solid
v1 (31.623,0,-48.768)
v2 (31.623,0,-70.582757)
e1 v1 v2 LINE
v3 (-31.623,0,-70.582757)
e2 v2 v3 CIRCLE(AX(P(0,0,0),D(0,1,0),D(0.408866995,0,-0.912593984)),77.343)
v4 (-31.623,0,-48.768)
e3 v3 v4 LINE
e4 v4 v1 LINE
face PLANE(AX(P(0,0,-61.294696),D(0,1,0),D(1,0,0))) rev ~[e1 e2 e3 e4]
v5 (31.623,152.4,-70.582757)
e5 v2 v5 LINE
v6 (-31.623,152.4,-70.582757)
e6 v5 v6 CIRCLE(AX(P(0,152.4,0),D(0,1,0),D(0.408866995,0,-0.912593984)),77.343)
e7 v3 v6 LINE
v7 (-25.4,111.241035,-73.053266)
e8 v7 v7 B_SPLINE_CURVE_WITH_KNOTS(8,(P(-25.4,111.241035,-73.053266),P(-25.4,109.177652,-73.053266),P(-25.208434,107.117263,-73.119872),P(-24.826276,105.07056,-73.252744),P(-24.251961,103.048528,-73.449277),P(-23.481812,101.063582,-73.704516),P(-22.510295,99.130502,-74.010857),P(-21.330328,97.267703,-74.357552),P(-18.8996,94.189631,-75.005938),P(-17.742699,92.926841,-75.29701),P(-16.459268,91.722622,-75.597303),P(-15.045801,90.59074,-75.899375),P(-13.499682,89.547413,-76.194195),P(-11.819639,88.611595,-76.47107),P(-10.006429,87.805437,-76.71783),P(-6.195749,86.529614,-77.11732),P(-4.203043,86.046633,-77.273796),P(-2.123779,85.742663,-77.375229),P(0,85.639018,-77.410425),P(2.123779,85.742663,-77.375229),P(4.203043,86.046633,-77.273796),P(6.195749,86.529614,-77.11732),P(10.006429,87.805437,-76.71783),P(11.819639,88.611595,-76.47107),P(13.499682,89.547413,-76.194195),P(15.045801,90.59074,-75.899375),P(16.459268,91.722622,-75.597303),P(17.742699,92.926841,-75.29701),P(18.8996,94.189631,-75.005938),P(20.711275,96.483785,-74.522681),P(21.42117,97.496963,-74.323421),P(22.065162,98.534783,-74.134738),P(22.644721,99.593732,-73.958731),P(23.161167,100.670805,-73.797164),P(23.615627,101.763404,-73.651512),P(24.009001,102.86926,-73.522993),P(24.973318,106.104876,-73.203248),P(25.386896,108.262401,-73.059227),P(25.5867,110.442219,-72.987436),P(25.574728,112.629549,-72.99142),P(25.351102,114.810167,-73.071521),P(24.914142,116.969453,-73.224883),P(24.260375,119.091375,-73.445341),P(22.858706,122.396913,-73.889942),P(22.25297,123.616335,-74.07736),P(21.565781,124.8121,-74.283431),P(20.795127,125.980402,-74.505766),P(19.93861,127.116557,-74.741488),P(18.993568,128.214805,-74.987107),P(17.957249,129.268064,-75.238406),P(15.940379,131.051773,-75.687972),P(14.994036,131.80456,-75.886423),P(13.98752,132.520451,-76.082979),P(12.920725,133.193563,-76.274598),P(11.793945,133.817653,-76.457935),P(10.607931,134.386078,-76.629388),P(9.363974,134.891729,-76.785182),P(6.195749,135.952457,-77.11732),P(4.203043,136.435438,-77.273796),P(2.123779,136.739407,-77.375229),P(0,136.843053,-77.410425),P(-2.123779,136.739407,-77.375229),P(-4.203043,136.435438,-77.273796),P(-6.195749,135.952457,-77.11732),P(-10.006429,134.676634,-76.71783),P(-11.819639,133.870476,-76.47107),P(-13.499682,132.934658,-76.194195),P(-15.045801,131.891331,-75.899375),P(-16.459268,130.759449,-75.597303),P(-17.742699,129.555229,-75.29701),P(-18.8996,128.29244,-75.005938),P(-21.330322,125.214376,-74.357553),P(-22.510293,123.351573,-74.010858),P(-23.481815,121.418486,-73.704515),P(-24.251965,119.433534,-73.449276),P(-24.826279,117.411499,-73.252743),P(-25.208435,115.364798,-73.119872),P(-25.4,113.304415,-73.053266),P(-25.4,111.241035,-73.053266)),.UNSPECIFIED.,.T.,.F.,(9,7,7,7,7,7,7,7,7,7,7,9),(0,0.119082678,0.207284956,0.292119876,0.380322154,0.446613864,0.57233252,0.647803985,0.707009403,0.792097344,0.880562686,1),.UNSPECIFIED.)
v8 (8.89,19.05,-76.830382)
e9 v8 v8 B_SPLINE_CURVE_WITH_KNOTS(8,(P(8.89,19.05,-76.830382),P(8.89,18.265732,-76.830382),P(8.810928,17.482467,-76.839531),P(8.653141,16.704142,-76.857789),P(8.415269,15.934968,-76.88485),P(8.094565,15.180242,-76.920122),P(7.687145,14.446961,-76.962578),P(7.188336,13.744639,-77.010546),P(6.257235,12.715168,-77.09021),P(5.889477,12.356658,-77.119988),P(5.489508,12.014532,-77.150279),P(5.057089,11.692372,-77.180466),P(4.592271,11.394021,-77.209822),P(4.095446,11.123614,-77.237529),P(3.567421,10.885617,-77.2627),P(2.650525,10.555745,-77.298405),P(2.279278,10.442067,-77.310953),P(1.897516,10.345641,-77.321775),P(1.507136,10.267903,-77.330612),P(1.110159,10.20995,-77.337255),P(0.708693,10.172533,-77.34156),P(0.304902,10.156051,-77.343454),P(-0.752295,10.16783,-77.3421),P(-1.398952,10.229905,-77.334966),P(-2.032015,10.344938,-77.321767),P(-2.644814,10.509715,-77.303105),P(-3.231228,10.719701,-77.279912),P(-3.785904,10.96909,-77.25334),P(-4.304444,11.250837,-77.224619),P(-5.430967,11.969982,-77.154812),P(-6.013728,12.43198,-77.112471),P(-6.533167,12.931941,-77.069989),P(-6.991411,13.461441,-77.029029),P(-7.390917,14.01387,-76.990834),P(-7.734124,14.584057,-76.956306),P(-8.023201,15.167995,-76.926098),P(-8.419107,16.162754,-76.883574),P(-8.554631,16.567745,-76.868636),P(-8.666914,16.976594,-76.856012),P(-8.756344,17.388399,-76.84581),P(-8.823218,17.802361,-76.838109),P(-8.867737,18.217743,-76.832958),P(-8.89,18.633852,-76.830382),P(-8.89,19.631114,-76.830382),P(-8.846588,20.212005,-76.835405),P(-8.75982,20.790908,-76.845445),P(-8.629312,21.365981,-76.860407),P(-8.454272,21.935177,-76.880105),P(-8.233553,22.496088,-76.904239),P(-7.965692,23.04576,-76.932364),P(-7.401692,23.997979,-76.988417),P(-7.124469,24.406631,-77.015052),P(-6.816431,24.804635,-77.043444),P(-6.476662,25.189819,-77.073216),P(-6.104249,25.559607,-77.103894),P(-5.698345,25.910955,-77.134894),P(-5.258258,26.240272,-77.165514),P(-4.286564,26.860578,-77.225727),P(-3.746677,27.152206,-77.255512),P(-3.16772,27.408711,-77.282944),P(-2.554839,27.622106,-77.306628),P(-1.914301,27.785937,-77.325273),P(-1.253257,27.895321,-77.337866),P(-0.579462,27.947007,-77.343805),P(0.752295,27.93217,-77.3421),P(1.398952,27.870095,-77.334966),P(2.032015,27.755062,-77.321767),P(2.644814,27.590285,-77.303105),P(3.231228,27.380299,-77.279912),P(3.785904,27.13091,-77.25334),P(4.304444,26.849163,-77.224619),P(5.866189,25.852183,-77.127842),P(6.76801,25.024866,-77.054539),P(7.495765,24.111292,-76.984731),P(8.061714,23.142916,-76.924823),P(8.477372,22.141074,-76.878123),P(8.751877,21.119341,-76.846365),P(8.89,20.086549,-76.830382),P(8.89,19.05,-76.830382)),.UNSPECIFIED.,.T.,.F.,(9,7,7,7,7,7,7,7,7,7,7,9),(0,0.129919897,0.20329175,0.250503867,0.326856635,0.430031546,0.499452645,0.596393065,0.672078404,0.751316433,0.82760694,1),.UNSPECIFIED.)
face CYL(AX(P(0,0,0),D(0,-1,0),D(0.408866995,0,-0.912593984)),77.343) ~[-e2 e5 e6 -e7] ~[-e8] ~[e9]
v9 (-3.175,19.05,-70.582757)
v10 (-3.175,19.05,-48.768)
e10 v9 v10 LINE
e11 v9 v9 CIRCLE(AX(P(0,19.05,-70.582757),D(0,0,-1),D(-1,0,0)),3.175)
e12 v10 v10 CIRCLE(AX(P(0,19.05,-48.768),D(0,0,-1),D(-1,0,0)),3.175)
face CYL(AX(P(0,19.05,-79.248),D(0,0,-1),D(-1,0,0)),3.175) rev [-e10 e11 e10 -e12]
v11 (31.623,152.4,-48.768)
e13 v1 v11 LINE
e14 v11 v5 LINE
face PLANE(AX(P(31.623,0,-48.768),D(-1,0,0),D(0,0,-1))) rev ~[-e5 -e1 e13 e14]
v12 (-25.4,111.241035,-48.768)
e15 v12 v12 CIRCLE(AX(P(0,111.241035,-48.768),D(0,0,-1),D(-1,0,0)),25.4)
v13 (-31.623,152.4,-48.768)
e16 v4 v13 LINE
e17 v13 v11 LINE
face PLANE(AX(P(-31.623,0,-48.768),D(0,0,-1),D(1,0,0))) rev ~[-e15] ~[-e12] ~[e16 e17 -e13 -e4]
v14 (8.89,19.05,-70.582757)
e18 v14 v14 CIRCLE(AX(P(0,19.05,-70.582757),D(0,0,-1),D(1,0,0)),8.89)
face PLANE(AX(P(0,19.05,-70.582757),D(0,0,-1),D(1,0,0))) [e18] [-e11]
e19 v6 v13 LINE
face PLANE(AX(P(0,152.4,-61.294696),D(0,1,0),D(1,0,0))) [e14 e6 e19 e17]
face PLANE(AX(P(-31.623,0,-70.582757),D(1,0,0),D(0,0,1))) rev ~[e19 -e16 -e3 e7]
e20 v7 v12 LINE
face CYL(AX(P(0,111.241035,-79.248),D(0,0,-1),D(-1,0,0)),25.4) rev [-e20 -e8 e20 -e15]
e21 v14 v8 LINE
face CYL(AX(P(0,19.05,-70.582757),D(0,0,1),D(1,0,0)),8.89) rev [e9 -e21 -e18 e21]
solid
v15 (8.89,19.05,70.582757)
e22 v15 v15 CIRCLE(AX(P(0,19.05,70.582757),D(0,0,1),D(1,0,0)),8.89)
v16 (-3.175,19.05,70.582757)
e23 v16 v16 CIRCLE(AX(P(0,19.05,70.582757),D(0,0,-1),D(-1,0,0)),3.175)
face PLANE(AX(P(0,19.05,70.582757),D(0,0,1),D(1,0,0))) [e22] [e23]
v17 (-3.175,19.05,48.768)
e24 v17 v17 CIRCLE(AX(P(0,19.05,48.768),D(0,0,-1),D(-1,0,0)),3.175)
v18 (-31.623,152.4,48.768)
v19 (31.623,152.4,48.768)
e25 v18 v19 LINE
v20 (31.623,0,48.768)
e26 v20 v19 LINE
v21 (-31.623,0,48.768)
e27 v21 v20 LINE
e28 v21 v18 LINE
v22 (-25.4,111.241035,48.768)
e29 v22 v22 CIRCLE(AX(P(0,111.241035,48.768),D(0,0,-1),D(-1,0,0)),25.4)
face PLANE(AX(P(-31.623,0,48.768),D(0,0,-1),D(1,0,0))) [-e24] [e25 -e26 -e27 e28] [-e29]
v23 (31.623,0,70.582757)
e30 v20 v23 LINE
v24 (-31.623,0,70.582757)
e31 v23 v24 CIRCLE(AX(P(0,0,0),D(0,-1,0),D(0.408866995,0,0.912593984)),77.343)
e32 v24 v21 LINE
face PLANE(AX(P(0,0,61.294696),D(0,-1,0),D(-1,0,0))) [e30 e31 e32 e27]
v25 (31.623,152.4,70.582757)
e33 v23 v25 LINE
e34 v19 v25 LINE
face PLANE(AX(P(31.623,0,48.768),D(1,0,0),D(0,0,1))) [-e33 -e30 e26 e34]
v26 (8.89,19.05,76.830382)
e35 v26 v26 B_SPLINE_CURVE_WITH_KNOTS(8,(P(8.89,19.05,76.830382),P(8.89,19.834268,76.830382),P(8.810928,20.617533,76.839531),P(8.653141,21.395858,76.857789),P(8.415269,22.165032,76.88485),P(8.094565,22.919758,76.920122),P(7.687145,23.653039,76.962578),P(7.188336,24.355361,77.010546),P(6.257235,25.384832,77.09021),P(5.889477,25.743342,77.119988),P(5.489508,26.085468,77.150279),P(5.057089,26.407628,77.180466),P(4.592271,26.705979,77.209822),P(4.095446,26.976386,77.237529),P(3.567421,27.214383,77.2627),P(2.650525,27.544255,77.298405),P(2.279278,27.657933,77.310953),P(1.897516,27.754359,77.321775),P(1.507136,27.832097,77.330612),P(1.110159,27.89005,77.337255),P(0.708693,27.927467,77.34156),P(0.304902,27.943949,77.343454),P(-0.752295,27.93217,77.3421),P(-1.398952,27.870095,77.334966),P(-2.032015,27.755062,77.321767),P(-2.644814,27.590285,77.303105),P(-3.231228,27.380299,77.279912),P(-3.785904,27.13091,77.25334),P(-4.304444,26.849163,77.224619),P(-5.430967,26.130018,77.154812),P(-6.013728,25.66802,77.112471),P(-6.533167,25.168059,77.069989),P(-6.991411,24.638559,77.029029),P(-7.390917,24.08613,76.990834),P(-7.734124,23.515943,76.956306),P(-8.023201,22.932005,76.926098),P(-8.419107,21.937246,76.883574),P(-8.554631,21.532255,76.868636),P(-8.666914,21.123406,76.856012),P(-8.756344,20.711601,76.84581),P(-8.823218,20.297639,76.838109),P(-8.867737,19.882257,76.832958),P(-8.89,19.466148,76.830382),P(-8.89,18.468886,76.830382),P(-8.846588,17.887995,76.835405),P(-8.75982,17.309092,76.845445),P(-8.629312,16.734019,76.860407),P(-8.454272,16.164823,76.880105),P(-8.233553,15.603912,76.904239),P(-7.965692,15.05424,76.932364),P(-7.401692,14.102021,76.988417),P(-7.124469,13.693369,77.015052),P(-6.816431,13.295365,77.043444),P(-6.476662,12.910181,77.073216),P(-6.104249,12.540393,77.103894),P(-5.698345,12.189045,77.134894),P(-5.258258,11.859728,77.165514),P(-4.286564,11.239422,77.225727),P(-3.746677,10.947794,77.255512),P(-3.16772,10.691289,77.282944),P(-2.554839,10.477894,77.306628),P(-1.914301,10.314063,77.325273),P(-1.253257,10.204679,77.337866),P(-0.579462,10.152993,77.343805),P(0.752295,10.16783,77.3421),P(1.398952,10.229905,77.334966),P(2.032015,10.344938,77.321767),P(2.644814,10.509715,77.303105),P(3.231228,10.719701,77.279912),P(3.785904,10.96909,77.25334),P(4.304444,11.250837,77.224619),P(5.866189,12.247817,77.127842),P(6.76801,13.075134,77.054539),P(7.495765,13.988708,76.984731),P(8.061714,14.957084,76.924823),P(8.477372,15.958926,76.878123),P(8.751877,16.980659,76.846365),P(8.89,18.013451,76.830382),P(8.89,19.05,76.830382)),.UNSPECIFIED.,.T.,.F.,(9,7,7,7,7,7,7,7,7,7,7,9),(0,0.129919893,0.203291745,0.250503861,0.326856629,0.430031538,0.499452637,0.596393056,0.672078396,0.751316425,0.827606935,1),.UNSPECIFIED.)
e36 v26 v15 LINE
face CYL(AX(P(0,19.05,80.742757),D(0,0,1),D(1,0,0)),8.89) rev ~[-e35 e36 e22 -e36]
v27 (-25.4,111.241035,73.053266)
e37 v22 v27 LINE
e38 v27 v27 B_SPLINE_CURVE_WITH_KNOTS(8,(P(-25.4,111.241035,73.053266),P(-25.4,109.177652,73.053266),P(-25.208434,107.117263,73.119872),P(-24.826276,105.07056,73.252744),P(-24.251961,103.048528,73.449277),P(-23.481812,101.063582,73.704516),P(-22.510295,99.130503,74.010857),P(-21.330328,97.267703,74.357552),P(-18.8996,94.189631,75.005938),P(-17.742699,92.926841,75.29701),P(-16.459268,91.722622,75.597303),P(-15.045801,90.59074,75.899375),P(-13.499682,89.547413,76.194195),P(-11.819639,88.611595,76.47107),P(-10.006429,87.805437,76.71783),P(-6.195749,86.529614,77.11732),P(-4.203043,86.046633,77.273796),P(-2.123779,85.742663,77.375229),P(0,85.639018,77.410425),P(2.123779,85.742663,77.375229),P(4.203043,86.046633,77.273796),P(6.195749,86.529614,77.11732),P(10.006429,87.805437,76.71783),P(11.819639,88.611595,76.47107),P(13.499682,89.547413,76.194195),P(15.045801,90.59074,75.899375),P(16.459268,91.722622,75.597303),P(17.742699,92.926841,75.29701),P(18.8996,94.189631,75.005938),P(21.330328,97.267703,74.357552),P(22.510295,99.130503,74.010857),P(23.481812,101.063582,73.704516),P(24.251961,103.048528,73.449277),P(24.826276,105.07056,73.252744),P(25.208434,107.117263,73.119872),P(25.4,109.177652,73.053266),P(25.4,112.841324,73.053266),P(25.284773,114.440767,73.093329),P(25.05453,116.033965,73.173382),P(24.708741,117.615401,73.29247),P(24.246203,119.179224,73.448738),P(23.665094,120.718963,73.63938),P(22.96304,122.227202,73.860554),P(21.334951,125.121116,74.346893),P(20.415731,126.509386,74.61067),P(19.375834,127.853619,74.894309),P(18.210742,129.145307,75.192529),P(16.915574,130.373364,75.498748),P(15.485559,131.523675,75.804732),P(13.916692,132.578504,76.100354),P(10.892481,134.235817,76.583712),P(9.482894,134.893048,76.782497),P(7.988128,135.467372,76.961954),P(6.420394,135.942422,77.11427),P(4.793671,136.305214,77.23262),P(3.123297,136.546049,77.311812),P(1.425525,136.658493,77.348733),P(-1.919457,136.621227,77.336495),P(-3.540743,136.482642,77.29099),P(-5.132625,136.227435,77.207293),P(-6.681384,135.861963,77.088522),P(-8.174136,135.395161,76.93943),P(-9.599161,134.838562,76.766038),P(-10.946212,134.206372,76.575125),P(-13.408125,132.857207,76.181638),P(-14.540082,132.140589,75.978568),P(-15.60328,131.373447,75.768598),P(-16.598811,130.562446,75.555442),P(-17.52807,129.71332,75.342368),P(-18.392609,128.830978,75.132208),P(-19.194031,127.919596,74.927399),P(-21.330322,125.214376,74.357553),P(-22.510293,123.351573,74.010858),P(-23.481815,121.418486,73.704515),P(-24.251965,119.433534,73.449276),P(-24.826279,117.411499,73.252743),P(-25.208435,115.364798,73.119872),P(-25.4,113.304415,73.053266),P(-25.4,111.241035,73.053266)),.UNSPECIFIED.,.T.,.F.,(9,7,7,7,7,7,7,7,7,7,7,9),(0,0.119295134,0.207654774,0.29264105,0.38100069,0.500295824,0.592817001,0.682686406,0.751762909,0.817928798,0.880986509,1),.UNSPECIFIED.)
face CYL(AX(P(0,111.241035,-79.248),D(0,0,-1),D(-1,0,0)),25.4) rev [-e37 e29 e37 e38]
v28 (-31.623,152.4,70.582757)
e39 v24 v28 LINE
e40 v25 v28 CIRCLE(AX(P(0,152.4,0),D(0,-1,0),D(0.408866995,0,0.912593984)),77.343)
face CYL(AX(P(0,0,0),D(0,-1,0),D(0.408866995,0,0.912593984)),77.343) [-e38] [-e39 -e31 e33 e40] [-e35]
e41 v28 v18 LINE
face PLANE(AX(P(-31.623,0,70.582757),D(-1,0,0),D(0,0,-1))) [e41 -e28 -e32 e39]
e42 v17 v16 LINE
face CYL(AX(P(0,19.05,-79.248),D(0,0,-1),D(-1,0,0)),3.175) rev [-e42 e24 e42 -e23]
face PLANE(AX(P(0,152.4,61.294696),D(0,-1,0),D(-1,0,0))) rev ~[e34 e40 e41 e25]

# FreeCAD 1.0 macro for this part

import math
import FreeCAD as App
import Part
import Sketcher
from FreeCAD import Vector
Q = App.Units.Quantity

doc = App.newDocument("Part")
body = doc.addObject("PartDesign::Body", "Body")

# Sketch on XZ plane
sketch1 = body.newObject("Sketcher::SketchObject", "Sketch")
sketch1.AttachmentSupport = (doc.getObject("XZ_Plane"), [""])
sketch1.MapMode = "FlatFace"
sketch1.addGeometry([
    Part.LineSegment(Vector(-32, -49, 0), Vector(32, -49, 0)),
    Part.LineSegment(Vector(32, -49, 0), Vector(32, -71, 0)),
    Part.ArcOfCircle(Part.Circle(Vector(0, 0, 0), Vector(0, 0, 1), 77), math.radians(-114), math.radians(-66)),
    Part.LineSegment(Vector(-32, -71, 0), Vector(-32, -49, 0)),
], False)
sketch1.addConstraint([
    Sketcher.Constraint("Coincident", 0, 2, 1, 1),
    Sketcher.Constraint("Coincident", 1, 2, 2, 2),
    Sketcher.Constraint("Coincident", 2, 1, 3, 1),
    Sketcher.Constraint("Coincident", 3, 2, 0, 1),
    Sketcher.Constraint("Horizontal", 0),
    Sketcher.Constraint("Vertical", 1),
    Sketcher.Constraint("Vertical", 3),
    Sketcher.Constraint("Coincident", 2, 3, -1, 1),
    Sketcher.Constraint("Horizontal", 1, 2, 2, 1),
    Sketcher.Constraint("Radius", 2, Q("3.045 in")),
    Sketcher.Constraint("DistanceX", 0, 1, 0, 2, Q("2.49 in")),
    Sketcher.Constraint("DistanceY", 0, 2, -1, 1, Q("1.92 in")),
])
pad1 = body.newObject("PartDesign::Pad", "Pad")
pad1.Profile = sketch1
pad1.Length = Q("6 in")
pad1.Reversed = True
body2 = doc.addObject("PartDesign::Body", "Body001")

# Sketch on XZ plane
sketch2 = body2.newObject("Sketcher::SketchObject", "Sketch001")
sketch2.AttachmentSupport = (doc.getObject("XZ_Plane001"), [""])
sketch2.MapMode = "FlatFace"
sketch2.addGeometry([
    Part.LineSegment(Vector(32, 49, 0), Vector(-32, 49, 0)),
    Part.LineSegment(Vector(-32, 49, 0), Vector(-32, 71, 0)),
    Part.ArcOfCircle(Part.Circle(Vector(0, 0, 0), Vector(0, 0, 1), 77), math.radians(66), math.radians(114)),
    Part.LineSegment(Vector(32, 71, 0), Vector(32, 49, 0)),
], False)
sketch2.addConstraint([
    Sketcher.Constraint("Coincident", 0, 2, 1, 1),
    Sketcher.Constraint("Coincident", 1, 2, 2, 2),
    Sketcher.Constraint("Coincident", 2, 1, 3, 1),
    Sketcher.Constraint("Coincident", 3, 2, 0, 1),
    Sketcher.Constraint("Horizontal", 0),
    Sketcher.Constraint("Vertical", 1),
    Sketcher.Constraint("Vertical", 3),
    Sketcher.Constraint("Coincident", 2, 3, -1, 1),
    Sketcher.Constraint("Horizontal", 1, 2, 2, 1),
    Sketcher.Constraint("Radius", 2, Q("3.045 in")),
    Sketcher.Constraint("DistanceX", 0, 2, 0, 1, Q("2.49 in")),
    Sketcher.Constraint("DistanceY", -1, 1, 0, 2, Q("1.92 in")),
])
pad2 = body2.newObject("PartDesign::Pad", "Pad001")
pad2.Profile = sketch2
pad2.Length = Q("6 in")
pad2.Reversed = True
body3 = doc.addObject("PartDesign::Body", "Body002")

# Sketch on XY plane
sketch3 = body3.newObject("Sketcher::SketchObject", "Sketch002")
sketch3.AttachmentSupport = (doc.getObject("XY_Plane002"), [""])
sketch3.MapMode = "FlatFace"
sketch3.AttachmentOffset = App.Placement(Vector(0, 0, -1.92 * 25.4), App.Rotation())
sketch3.addGeometry(Part.Circle(Vector(0, 19.1, 0), Vector(0, 0, 1), 3.2), False)
sketch3.addConstraint([
    Sketcher.Constraint("PointOnObject", 0, 3, -2),
    Sketcher.Constraint("Diameter", 0, Q("0.25 in")),
    Sketcher.Constraint("DistanceY", -1, 1, 0, 3, Q("0.75 in")),
])
pad3 = body3.newObject("PartDesign::Pad", "Pad002")
pad3.Profile = sketch3
pad3.Type = "TwoLengths"
pad3.Length = Q("5 in")
pad3.Length2 = Q("1.2 in")
doc.recompute()

body4 = doc.addObject("PartDesign::Body", "Body003")
body4.BaseFeature = body3
boolean = body.newObject("PartDesign::Boolean", "Boolean")
boolean.Type = "Cut"
boolean.addObjects([body4])
doc.recompute()

boolean2 = body2.newObject("PartDesign::Boolean", "Boolean001")
boolean2.Type = "Cut"
boolean2.addObjects([body3])
body5 = doc.addObject("PartDesign::Body", "Body004")

# Sketch on XY plane
sketch4 = body5.newObject("Sketcher::SketchObject", "Sketch003")
sketch4.AttachmentSupport = (doc.getObject("XY_Plane004"), [""])
sketch4.MapMode = "FlatFace"
sketch4.AttachmentOffset = App.Placement(Vector(0, 0, -1.92 * 25.4), App.Rotation())
sketch4.addGeometry(Part.Circle(Vector(0, 111, 0), Vector(0, 0, 1), 25), False)
sketch4.addConstraint([
    Sketcher.Constraint("PointOnObject", 0, 3, -2),
    Sketcher.Constraint("Diameter", 0, Q("2 in")),
    Sketcher.Constraint("DistanceY", -1, 1, 0, 3, 111.241035),
])
pad4 = body5.newObject("PartDesign::Pad", "Pad003")
pad4.Profile = sketch4
pad4.Type = "TwoLengths"
pad4.Length = Q("5 in")
pad4.Length2 = Q("1.2 in")
doc.recompute()

body6 = doc.addObject("PartDesign::Body", "Body005")
body6.BaseFeature = body5
boolean3 = body.newObject("PartDesign::Boolean", "Boolean002")
boolean3.Type = "Cut"
boolean3.addObjects([body6])
doc.recompute()

# Sketch on XY plane
sketch5 = body.newObject("Sketcher::SketchObject", "Sketch004")
sketch5.AttachmentSupport = (doc.getObject("XY_Plane"), [""])
sketch5.MapMode = "FlatFace"
sketch5.AttachmentOffset = App.Placement(Vector(0, 0, -70.582757), App.Rotation())
sketch5.addGeometry(Part.Circle(Vector(0, 19, 0), Vector(0, 0, 1), 9), False)
sketch5.addConstraint([
    Sketcher.Constraint("PointOnObject", 0, 3, -2),
    Sketcher.Constraint("Diameter", 0, Q("0.7 in")),
    Sketcher.Constraint("DistanceY", -1, 1, 0, 3, Q("0.75 in")),
])
pocket1 = body.newObject("PartDesign::Pocket", "Pocket")
pocket1.Profile = sketch5
pocket1.Length = Q("0.4 in")
doc.recompute()

boolean4 = body2.newObject("PartDesign::Boolean", "Boolean003")
boolean4.Type = "Cut"
boolean4.addObjects([body5])

# Sketch on XY plane
sketch6 = body2.newObject("Sketcher::SketchObject", "Sketch005")
sketch6.AttachmentSupport = (doc.getObject("XY_Plane001"), [""])
sketch6.MapMode = "FlatFace"
sketch6.AttachmentOffset = App.Placement(Vector(0, 0, 80.742757), App.Rotation())
sketch6.addGeometry(Part.Circle(Vector(0, 19, 0), Vector(0, 0, 1), 9), False)
sketch6.addConstraint([
    Sketcher.Constraint("PointOnObject", 0, 3, -2),
    Sketcher.Constraint("Diameter", 0, Q("0.7 in")),
    Sketcher.Constraint("DistanceY", -1, 1, 0, 3, Q("0.75 in")),
])
pocket2 = body2.newObject("PartDesign::Pocket", "Pocket001")
pocket2.Profile = sketch6
pocket2.Length = Q("0.4 in")

doc.recompute()
